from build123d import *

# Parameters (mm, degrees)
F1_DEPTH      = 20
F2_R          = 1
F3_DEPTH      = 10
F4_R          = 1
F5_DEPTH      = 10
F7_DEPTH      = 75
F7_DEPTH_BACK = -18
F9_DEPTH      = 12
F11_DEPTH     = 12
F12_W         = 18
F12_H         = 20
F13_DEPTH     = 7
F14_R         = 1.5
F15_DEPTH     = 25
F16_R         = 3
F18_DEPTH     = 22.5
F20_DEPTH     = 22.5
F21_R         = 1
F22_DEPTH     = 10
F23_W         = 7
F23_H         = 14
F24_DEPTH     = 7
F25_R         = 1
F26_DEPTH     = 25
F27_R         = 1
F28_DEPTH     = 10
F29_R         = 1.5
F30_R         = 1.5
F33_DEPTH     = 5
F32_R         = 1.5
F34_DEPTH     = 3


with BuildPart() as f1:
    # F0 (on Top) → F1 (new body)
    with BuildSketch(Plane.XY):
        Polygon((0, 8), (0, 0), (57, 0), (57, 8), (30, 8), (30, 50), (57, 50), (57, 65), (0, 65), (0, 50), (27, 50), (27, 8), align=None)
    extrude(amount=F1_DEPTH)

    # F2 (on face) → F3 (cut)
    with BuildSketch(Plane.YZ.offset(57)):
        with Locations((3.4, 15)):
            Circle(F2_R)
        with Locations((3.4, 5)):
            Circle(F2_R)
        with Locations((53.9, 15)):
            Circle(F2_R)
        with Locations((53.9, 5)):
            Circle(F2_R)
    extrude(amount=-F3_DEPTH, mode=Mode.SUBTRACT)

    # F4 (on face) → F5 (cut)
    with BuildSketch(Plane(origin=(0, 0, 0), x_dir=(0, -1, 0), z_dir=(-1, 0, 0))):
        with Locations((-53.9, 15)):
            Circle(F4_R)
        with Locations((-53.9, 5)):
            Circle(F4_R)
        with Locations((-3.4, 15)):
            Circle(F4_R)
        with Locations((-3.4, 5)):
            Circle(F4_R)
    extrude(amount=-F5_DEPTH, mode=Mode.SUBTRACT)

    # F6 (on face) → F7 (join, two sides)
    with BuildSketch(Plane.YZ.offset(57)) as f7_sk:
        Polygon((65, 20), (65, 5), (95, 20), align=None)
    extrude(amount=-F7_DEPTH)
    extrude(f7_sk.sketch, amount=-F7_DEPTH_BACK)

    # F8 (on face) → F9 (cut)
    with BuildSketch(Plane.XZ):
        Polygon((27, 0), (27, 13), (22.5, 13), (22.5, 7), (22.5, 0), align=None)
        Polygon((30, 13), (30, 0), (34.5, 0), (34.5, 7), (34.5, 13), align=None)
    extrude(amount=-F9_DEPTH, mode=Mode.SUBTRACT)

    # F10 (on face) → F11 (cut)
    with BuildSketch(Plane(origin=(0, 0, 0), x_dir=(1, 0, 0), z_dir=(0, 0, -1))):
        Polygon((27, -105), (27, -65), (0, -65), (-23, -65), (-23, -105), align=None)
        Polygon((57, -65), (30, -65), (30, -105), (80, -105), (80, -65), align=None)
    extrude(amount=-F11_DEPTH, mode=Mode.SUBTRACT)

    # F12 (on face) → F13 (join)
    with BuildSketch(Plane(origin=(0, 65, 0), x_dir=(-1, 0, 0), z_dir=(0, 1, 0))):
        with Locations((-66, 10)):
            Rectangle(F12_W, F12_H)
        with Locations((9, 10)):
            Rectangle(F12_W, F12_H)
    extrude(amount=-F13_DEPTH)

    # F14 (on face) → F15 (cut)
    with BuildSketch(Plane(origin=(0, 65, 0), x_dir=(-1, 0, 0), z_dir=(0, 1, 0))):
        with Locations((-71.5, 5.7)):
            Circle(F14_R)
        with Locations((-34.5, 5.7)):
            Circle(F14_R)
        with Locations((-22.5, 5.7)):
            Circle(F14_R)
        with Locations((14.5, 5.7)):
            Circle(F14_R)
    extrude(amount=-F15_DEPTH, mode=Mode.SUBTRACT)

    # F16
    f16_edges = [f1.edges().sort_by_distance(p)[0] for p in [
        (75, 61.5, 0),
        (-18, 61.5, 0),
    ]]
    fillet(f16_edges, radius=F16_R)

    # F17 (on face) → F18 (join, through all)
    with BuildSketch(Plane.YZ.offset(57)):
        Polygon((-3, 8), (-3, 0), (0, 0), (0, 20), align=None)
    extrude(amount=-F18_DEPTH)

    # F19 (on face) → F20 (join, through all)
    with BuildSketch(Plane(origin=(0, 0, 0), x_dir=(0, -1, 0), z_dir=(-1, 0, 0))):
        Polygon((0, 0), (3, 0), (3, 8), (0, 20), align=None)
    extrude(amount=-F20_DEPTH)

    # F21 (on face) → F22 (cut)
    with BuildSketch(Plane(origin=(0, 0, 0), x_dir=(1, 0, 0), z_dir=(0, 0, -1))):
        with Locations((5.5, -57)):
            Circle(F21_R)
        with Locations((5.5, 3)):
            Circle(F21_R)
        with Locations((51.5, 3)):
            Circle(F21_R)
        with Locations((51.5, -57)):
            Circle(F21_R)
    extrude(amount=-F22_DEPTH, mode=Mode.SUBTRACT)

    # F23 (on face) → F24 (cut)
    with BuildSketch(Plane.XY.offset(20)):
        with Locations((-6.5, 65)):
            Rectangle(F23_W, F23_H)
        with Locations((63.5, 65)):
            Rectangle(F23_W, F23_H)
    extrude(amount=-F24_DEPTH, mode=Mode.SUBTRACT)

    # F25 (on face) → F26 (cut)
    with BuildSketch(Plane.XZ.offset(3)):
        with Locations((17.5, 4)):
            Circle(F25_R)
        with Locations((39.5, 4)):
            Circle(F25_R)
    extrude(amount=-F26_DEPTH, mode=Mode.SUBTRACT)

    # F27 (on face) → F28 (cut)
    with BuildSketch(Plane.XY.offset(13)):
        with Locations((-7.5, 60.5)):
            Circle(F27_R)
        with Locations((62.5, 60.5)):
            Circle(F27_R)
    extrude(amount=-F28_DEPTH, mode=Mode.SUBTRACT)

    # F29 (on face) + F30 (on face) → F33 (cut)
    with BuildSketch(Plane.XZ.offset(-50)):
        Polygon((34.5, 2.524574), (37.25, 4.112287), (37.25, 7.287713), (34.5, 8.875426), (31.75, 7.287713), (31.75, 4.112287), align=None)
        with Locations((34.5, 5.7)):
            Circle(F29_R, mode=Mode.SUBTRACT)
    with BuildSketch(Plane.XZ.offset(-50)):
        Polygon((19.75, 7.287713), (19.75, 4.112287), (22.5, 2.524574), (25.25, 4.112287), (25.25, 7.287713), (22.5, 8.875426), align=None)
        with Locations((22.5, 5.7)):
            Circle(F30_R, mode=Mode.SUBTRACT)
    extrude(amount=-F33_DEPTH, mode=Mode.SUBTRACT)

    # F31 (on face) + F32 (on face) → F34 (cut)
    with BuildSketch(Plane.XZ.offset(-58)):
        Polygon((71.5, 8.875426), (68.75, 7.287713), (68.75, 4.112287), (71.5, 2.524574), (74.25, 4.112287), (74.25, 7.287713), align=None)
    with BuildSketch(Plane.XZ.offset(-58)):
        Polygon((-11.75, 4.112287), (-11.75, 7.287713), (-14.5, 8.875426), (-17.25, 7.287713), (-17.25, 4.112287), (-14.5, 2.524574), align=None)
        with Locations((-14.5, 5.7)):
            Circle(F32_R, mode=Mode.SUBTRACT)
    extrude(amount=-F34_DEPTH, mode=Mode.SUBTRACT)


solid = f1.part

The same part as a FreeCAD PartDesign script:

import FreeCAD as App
import Part
import Sketcher

V = App.Vector
Q = App.Units.Quantity


def edges_at(feature, points):
    """Names of the edges that pass closest to the given points."""
    edges = feature.Shape.Edges
    near = lambda p: min(range(len(edges)), key=lambda i: edges[i].distToShape(Part.Vertex(*p))[0])
    return sorted({f"Edge{near(p) + 1}" for p in points})

doc = App.newDocument("Part")
params = doc.addObject("Spreadsheet::Sheet", "Params")
for row, (alias, value) in enumerate([
    ("sketch1_width", "57 mm"),
    ("sketch1_width2", "27 mm"),
    ("sketch1_height", "8 mm"),
    ("sketch1_height2", "42 mm"),
    ("sketch1_height3", "15 mm"),
    ("pad1_length", "20 mm"),
    ("sketch2_diameter", "2 mm"),
    ("pocket1_length", "10 mm"),
    ("sketch3_diameter", "2 mm"),
    ("pocket2_length", "10 mm"),
    ("sketch4_width", "30 mm"),
    ("sketch4_height", "15 mm"),
    ("pad2_length", "75 mm"),
    ("pad2_length2", "18 mm"),
    ("sketch5_height", "13 mm"),
    ("sketch5_width", "4.5 mm"),
    ("pocket3_length", "12 mm"),
    ("sketch6_width", "50 mm"),
    ("sketch6_height", "40 mm"),
    ("pocket4_length", "12 mm"),
    ("sketch7_width", "18 mm"),
    ("sketch7_height", "20 mm"),
    ("pad3_length", "7 mm"),
    ("sketch8_diameter", "3 mm"),
    ("pocket5_length", "25 mm"),
    ("fillet_radius", "3 mm"),
    ("sketch9_width", "3 mm"),
    ("sketch9_height", "8 mm"),
    ("sketch9_height2", "20 mm"),
    ("pad4_length", "22.5 mm"),
    ("sketch10_width", "3 mm"),
    ("sketch10_height", "8 mm"),
    ("sketch10_height2", "20 mm"),
    ("pad5_length", "22.5 mm"),
    ("sketch11_diameter", "2 mm"),
    ("pocket6_length", "10 mm"),
    ("sketch12_width", "7 mm"),
    ("sketch12_height", "14 mm"),
    ("pocket7_length", "7 mm"),
    ("sketch13_diameter", "2 mm"),
    ("pocket8_length", "25 mm"),
    ("sketch14_diameter", "2 mm"),
    ("pocket9_length", "10 mm"),
    ("sketch15_diameter", "3 mm"),
    ("pocket10_length", "5 mm"),
    ("sketch16_diameter", "3 mm"),
    ("pocket11_length", "3 mm"),
], start=1):
    params.set(f"A{row}", alias)
    params.set(f"B{row}", "=" + value)
    params.setAlias(f"B{row}", alias)

body = doc.addObject("PartDesign::Body", "Body")

sketch1 = body.newObject("Sketcher::SketchObject", "Sketch")
sketch1.AttachmentSupport = (doc.getObject("XY_Plane"), [""])
sketch1.MapMode = "FlatFace"
sketch1.addGeometry([
    Part.LineSegment(V(0, 8, 0), V(0, 0, 0)),
    Part.LineSegment(V(0, 0, 0), V(57, 0, 0)),
    Part.LineSegment(V(57, 0, 0), V(57, 8, 0)),
    Part.LineSegment(V(57, 8, 0), V(30, 8, 0)),
    Part.LineSegment(V(30, 8, 0), V(30, 50, 0)),
    Part.LineSegment(V(30, 50, 0), V(57, 50, 0)),
    Part.LineSegment(V(57, 50, 0), V(57, 65, 0)),
    Part.LineSegment(V(57, 65, 0), V(0, 65, 0)),
    Part.LineSegment(V(0, 65, 0), V(0, 50, 0)),
    Part.LineSegment(V(0, 50, 0), V(27, 50, 0)),
    Part.LineSegment(V(27, 50, 0), V(27, 8, 0)),
    Part.LineSegment(V(27, 8, 0), V(0, 8, 0)),
], False)
sketch1.addConstraint([
    Sketcher.Constraint("Coincident", 0, 2, 1, 1),
    Sketcher.Constraint("Coincident", 1, 2, 2, 1),
    Sketcher.Constraint("Coincident", 2, 2, 3, 1),
    Sketcher.Constraint("Coincident", 3, 2, 4, 1),
    Sketcher.Constraint("Coincident", 4, 2, 5, 1),
    Sketcher.Constraint("Coincident", 5, 2, 6, 1),
    Sketcher.Constraint("Coincident", 6, 2, 7, 1),
    Sketcher.Constraint("Coincident", 7, 2, 8, 1),
    Sketcher.Constraint("Coincident", 8, 2, 9, 1),
    Sketcher.Constraint("Coincident", 9, 2, 10, 1),
    Sketcher.Constraint("Coincident", 10, 2, 11, 1),
    Sketcher.Constraint("Coincident", 11, 2, 0, 1),
    Sketcher.Constraint("Vertical", 0),
    Sketcher.Constraint("Horizontal", 1),
    Sketcher.Constraint("Vertical", 2),
    Sketcher.Constraint("Horizontal", 3),
    Sketcher.Constraint("Vertical", 4),
    Sketcher.Constraint("Horizontal", 5),
    Sketcher.Constraint("Vertical", 6),
    Sketcher.Constraint("Horizontal", 7),
    Sketcher.Constraint("Vertical", 8),
    Sketcher.Constraint("Horizontal", 9),
    Sketcher.Constraint("Vertical", 10),
    Sketcher.Constraint("Horizontal", 11),
    Sketcher.Constraint("Coincident", 0, 2, -1, 1),
    Sketcher.Constraint("PointOnObject", 7, 2, -2),
    Sketcher.Constraint("Horizontal", 5, 2, 8, 2),
    Sketcher.Constraint("Horizontal", 3, 2, 10, 2),
    Sketcher.Constraint("Vertical", 2, 2, 5, 2),
    Sketcher.Constraint("Equal", 5, 9),
    Sketcher.Constraint("DistanceX", 1, 1, 1, 2, 57.0),
    Sketcher.Constraint("DistanceX", 3, 2, 3, 1, 27.0),
    Sketcher.Constraint("DistanceY", 0, 2, 0, 1, 8.0),
    Sketcher.Constraint("DistanceY", 4, 1, 4, 2, 42.0),
    Sketcher.Constraint("DistanceY", 6, 1, 6, 2, 15.0),
])
sketch1.setExpression("Constraints[30]", "Params.sketch1_width")
sketch1.setExpression("Constraints[31]", "Params.sketch1_width2")
sketch1.setExpression("Constraints[32]", "Params.sketch1_height")
sketch1.setExpression("Constraints[33]", "Params.sketch1_height2")
sketch1.setExpression("Constraints[34]", "Params.sketch1_height3")
pad1 = body.newObject("PartDesign::Pad", "Pad")
pad1.Profile = sketch1
pad1.setExpression("Length", "Params.pad1_length")

sketch2 = body.newObject("Sketcher::SketchObject", "Sketch001")
sketch2.AttachmentSupport = (doc.getObject("YZ_Plane"), [""])
sketch2.MapMode = "FlatFace"
sketch2.AttachmentOffset = App.Placement(V(0, 0, 57), App.Rotation())
sketch2.addGeometry([
    Part.Circle(V(3.4, 15, 0), V(0, 0, 1), 1),
    Part.Circle(V(3.4, 5, 0), V(0, 0, 1), 1),
    Part.Circle(V(53.9, 15, 0), V(0, 0, 1), 1),
    Part.Circle(V(53.9, 5, 0), V(0, 0, 1), 1),
], False)
sketch2.addConstraint([
    Sketcher.Constraint("Equal", 0, 1),
    Sketcher.Constraint("Equal", 1, 2),
    Sketcher.Constraint("Equal", 2, 3),
    Sketcher.Constraint("Horizontal", 0, 3, 2, 3),
    Sketcher.Constraint("Horizontal", 1, 3, 3, 3),
    Sketcher.Constraint("Vertical", 0, 3, 1, 3),
    Sketcher.Constraint("Vertical", 2, 3, 3, 3),
    Sketcher.Constraint("Diameter", 0, 2.0),
    Sketcher.Constraint("DistanceY", -1, 1, 0, 3, 15.0),
    Sketcher.Constraint("DistanceY", -1, 1, 1, 3, 5.0),
    Sketcher.Constraint("DistanceX", -1, 1, 0, 3, 3.4),
    Sketcher.Constraint("DistanceX", -1, 1, 2, 3, 53.9),
])
sketch2.setExpression("Constraints[7]", "Params.sketch2_diameter")
pocket1 = body.newObject("PartDesign::Pocket", "Pocket")
pocket1.Profile = sketch2
pocket1.setExpression("Length", "Params.pocket1_length")

sketch3 = body.newObject("Sketcher::SketchObject", "Sketch002")
sketch3.AttachmentSupport = (doc.getObject("YZ_Plane"), [""])
sketch3.MapMode = "FlatFace"
sketch3.addGeometry([
    Part.Circle(V(53.9, 15, 0), V(0, 0, 1), 1),
    Part.Circle(V(53.9, 5, 0), V(0, 0, 1), 1),
    Part.Circle(V(3.4, 15, 0), V(0, 0, 1), 1),
    Part.Circle(V(3.4, 5, 0), V(0, 0, 1), 1),
], False)
sketch3.addConstraint([
    Sketcher.Constraint("Equal", 0, 1),
    Sketcher.Constraint("Equal", 1, 2),
    Sketcher.Constraint("Equal", 2, 3),
    Sketcher.Constraint("Horizontal", 0, 3, 2, 3),
    Sketcher.Constraint("Horizontal", 1, 3, 3, 3),
    Sketcher.Constraint("Vertical", 0, 3, 1, 3),
    Sketcher.Constraint("Vertical", 2, 3, 3, 3),
    Sketcher.Constraint("Diameter", 0, 2.0),
    Sketcher.Constraint("DistanceY", -1, 1, 0, 3, 15.0),
    Sketcher.Constraint("DistanceY", -1, 1, 1, 3, 5.0),
    Sketcher.Constraint("DistanceX", -1, 1, 0, 3, 53.9),
    Sketcher.Constraint("DistanceX", -1, 1, 2, 3, 3.4),
])
sketch3.setExpression("Constraints[7]", "Params.sketch3_diameter")
pocket2 = body.newObject("PartDesign::Pocket", "Pocket001")
pocket2.Profile = sketch3
pocket2.setExpression("Length", "Params.pocket2_length")
pocket2.Reversed = True

sketch4 = body.newObject("Sketcher::SketchObject", "Sketch003")
sketch4.AttachmentSupport = (doc.getObject("YZ_Plane"), [""])
sketch4.MapMode = "FlatFace"
sketch4.AttachmentOffset = App.Placement(V(0, 0, 57), App.Rotation())
sketch4.addGeometry([
    Part.LineSegment(V(65, 20, 0), V(65, 5, 0)),
    Part.LineSegment(V(65, 5, 0), V(95, 20, 0)),
    Part.LineSegment(V(95, 20, 0), V(65, 20, 0)),
], False)
sketch4.addConstraint([
    Sketcher.Constraint("Coincident", 0, 2, 1, 1),
    Sketcher.Constraint("Coincident", 1, 2, 2, 1),
    Sketcher.Constraint("Coincident", 2, 2, 0, 1),
    Sketcher.Constraint("Vertical", 0),
    Sketcher.Constraint("Horizontal", 2),
    Sketcher.Constraint("DistanceX", 2, 2, 2, 1, 30.0),
    Sketcher.Constraint("DistanceY", 0, 2, 0, 1, 15.0),
    Sketcher.Constraint("DistanceX", -1, 1, 0, 2, 65.0),
    Sketcher.Constraint("DistanceY", -1, 1, 0, 2, 5.0),
])
sketch4.setExpression("Constraints[5]", "Params.sketch4_width")
sketch4.setExpression("Constraints[6]", "Params.sketch4_height")
pad2 = body.newObject("PartDesign::Pad", "Pad001")
pad2.Profile = sketch4
pad2.Type = "TwoLengths"
pad2.setExpression("Length", "Params.pad2_length")
pad2.setExpression("Length2", "Params.pad2_length2")
pad2.Reversed = True

sketch5 = body.newObject("Sketcher::SketchObject", "Sketch004")
sketch5.AttachmentSupport = (doc.getObject("XZ_Plane"), [""])
sketch5.MapMode = "FlatFace"
sketch5.addGeometry([
    Part.LineSegment(V(27, 0, 0), V(27, 13, 0)),
    Part.LineSegment(V(27, 13, 0), V(22.5, 13, 0)),
    Part.LineSegment(V(22.5, 13, 0), V(22.5, 0, 0)),
    Part.LineSegment(V(22.5, 0, 0), V(27, 0, 0)),
    Part.LineSegment(V(30, 13, 0), V(30, 0, 0)),
    Part.LineSegment(V(30, 0, 0), V(34.5, 0, 0)),
    Part.LineSegment(V(34.5, 0, 0), V(34.5, 13, 0)),
    Part.LineSegment(V(34.5, 13, 0), V(30, 13, 0)),
], False)
sketch5.addConstraint([
    Sketcher.Constraint("Coincident", 0, 2, 1, 1),
    Sketcher.Constraint("Coincident", 1, 2, 2, 1),
    Sketcher.Constraint("Coincident", 2, 2, 3, 1),
    Sketcher.Constraint("Coincident", 3, 2, 0, 1),
    Sketcher.Constraint("Coincident", 4, 2, 5, 1),
    Sketcher.Constraint("Coincident", 5, 2, 6, 1),
    Sketcher.Constraint("Coincident", 6, 2, 7, 1),
    Sketcher.Constraint("Coincident", 7, 2, 4, 1),
    Sketcher.Constraint("Vertical", 0),
    Sketcher.Constraint("Horizontal", 1),
    Sketcher.Constraint("Vertical", 2),
    Sketcher.Constraint("Horizontal", 3),
    Sketcher.Constraint("Vertical", 4),
    Sketcher.Constraint("Horizontal", 5),
    Sketcher.Constraint("Vertical", 6),
    Sketcher.Constraint("Horizontal", 7),
    Sketcher.Constraint("PointOnObject", 2, 2, -1),
    Sketcher.Constraint("PointOnObject", 4, 2, -1),
    Sketcher.Constraint("Horizontal", 1, 2, 6, 2),
    Sketcher.Constraint("Equal", 3, 5),
    Sketcher.Constraint("DistanceY", 0, 1, 0, 2, 13.0),
    Sketcher.Constraint("DistanceX", 1, 2, 1, 1, 4.5),
    Sketcher.Constraint("DistanceX", -1, 1, 0, 2, 27.0),
    Sketcher.Constraint("DistanceX", -1, 1, 4, 2, 30.0),
])
sketch5.setExpression("Constraints[20]", "Params.sketch5_height")
sketch5.setExpression("Constraints[21]", "Params.sketch5_width")
pocket3 = body.newObject("PartDesign::Pocket", "Pocket002")
pocket3.Profile = sketch5
pocket3.setExpression("Length", "Params.pocket3_length")

sketch6 = body.newObject("Sketcher::SketchObject", "Sketch005")
sketch6.AttachmentSupport = (doc.getObject("XY_Plane"), [""])
sketch6.MapMode = "FlatFace"
sketch6.addGeometry([
    Part.LineSegment(V(27, 105, 0), V(27, 65, 0)),
    Part.LineSegment(V(27, 65, 0), V(-23, 65, 0)),
    Part.LineSegment(V(-23, 65, 0), V(-23, 105, 0)),
    Part.LineSegment(V(-23, 105, 0), V(27, 105, 0)),
    Part.LineSegment(V(30, 65, 0), V(30, 105, 0)),
    Part.LineSegment(V(30, 105, 0), V(80, 105, 0)),
    Part.LineSegment(V(80, 105, 0), V(80, 65, 0)),
    Part.LineSegment(V(80, 65, 0), V(30, 65, 0)),
], False)
sketch6.addConstraint([
    Sketcher.Constraint("Coincident", 0, 2, 1, 1),
    Sketcher.Constraint("Coincident", 1, 2, 2, 1),
    Sketcher.Constraint("Coincident", 2, 2, 3, 1),
    Sketcher.Constraint("Coincident", 3, 2, 0, 1),
    Sketcher.Constraint("Coincident", 4, 2, 5, 1),
    Sketcher.Constraint("Coincident", 5, 2, 6, 1),
    Sketcher.Constraint("Coincident", 6, 2, 7, 1),
    Sketcher.Constraint("Coincident", 7, 2, 4, 1),
    Sketcher.Constraint("Vertical", 0),
    Sketcher.Constraint("Horizontal", 1),
    Sketcher.Constraint("Vertical", 2),
    Sketcher.Constraint("Horizontal", 3),
    Sketcher.Constraint("Vertical", 4),
    Sketcher.Constraint("Horizontal", 5),
    Sketcher.Constraint("Vertical", 6),
    Sketcher.Constraint("Horizontal", 7),
    Sketcher.Constraint("Horizontal", 3, 2, 4, 2),
    Sketcher.Constraint("Horizontal", 1, 2, 6, 2),
    Sketcher.Constraint("Equal", 3, 5),
    Sketcher.Constraint("DistanceX", 1, 2, 1, 1, 50.0),
    Sketcher.Constraint("DistanceY", 0, 2, 0, 1, 40.0),
    Sketcher.Constraint("DistanceX", -1, 1, 0, 2, 27.0),
    Sketcher.Constraint("DistanceY", -1, 1, 0, 2, 65.0),
    Sketcher.Constraint("DistanceX", -1, 1, 4, 2, 30.0),
])
sketch6.setExpression("Constraints[19]", "Params.sketch6_width")
sketch6.setExpression("Constraints[20]", "Params.sketch6_height")
pocket4 = body.newObject("PartDesign::Pocket", "Pocket003")
pocket4.Profile = sketch6
pocket4.setExpression("Length", "Params.pocket4_length")
pocket4.Reversed = True

sketch7 = body.newObject("Sketcher::SketchObject", "Sketch006")
sketch7.AttachmentSupport = (doc.getObject("XZ_Plane"), [""])
sketch7.MapMode = "FlatFace"
sketch7.AttachmentOffset = App.Placement(V(0, 0, -65), App.Rotation())
sketch7.addGeometry([
    Part.LineSegment(V(75, 20, 0), V(75, 0, 0)),
    Part.LineSegment(V(75, 0, 0), V(57, 0, 0)),
    Part.LineSegment(V(57, 0, 0), V(57, 20, 0)),
    Part.LineSegment(V(57, 20, 0), V(75, 20, 0)),
    Part.LineSegment(V(0, 20, 0), V(0, 0, 0)),
    Part.LineSegment(V(0, 0, 0), V(-18, 0, 0)),
    Part.LineSegment(V(-18, 0, 0), V(-18, 20, 0)),
    Part.LineSegment(V(-18, 20, 0), V(0, 20, 0)),
], False)
sketch7.addConstraint([
    Sketcher.Constraint("Coincident", 0, 2, 1, 1),
    Sketcher.Constraint("Coincident", 1, 2, 2, 1),
    Sketcher.Constraint("Coincident", 2, 2, 3, 1),
    Sketcher.Constraint("Coincident", 3, 2, 0, 1),
    Sketcher.Constraint("Coincident", 4, 2, 5, 1),
    Sketcher.Constraint("Coincident", 5, 2, 6, 1),
    Sketcher.Constraint("Coincident", 6, 2, 7, 1),
    Sketcher.Constraint("Coincident", 7, 2, 4, 1),
    Sketcher.Constraint("Vertical", 0),
    Sketcher.Constraint("Horizontal", 1),
    Sketcher.Constraint("Vertical", 2),
    Sketcher.Constraint("Horizontal", 3),
    Sketcher.Constraint("Vertical", 4),
    Sketcher.Constraint("Horizontal", 5),
    Sketcher.Constraint("Vertical", 6),
    Sketcher.Constraint("Horizontal", 7),
    Sketcher.Constraint("Coincident", 4, 2, -1, 1),
    Sketcher.Constraint("PointOnObject", 0, 2, -1),
    Sketcher.Constraint("Horizontal", 3, 2, 6, 2),
    Sketcher.Constraint("Equal", 3, 5),
    Sketcher.Constraint("DistanceX", 1, 2, 1, 1, 18.0),
    Sketcher.Constraint("DistanceY", 0, 2, 0, 1, 20.0),
    Sketcher.Constraint("DistanceX", -1, 1, 0, 2, 75.0),
])
sketch7.setExpression("Constraints[20]", "Params.sketch7_width")
sketch7.setExpression("Constraints[21]", "Params.sketch7_height")
pad3 = body.newObject("PartDesign::Pad", "Pad002")
pad3.Profile = sketch7
pad3.setExpression("Length", "Params.pad3_length")

sketch8 = body.newObject("Sketcher::SketchObject", "Sketch007")
sketch8.AttachmentSupport = (doc.getObject("XZ_Plane"), [""])
sketch8.MapMode = "FlatFace"
sketch8.AttachmentOffset = App.Placement(V(0, 0, -65), App.Rotation())
sketch8.addGeometry([
    Part.Circle(V(71.5, 5.7, 0), V(0, 0, 1), 1.5),
    Part.Circle(V(34.5, 5.7, 0), V(0, 0, 1), 1.5),
    Part.Circle(V(22.5, 5.7, 0), V(0, 0, 1), 1.5),
    Part.Circle(V(-14.5, 5.7, 0), V(0, 0, 1), 1.5),
], False)
sketch8.addConstraint([
    Sketcher.Constraint("Equal", 0, 1),
    Sketcher.Constraint("Equal", 1, 2),
    Sketcher.Constraint("Equal", 2, 3),
    Sketcher.Constraint("Horizontal", 0, 3, 1, 3),
    Sketcher.Constraint("Horizontal", 1, 3, 2, 3),
    Sketcher.Constraint("Horizontal", 2, 3, 3, 3),
    Sketcher.Constraint("Diameter", 0, 3.0),
    Sketcher.Constraint("DistanceX", 1, 3, 0, 3, 37.0),
    Sketcher.Constraint("DistanceX", 2, 3, 1, 3, 12.0),
    Sketcher.Constraint("DistanceX", 3, 3, 2, 3, 37.0),
    Sketcher.Constraint("DistanceX", -1, 1, 0, 3, 71.5),
    Sketcher.Constraint("DistanceY", -1, 1, 0, 3, 5.7),
])
sketch8.setExpression("Constraints[6]", "Params.sketch8_diameter")
pocket5 = body.newObject("PartDesign::Pocket", "Pocket004")
pocket5.Profile = sketch8
pocket5.setExpression("Length", "Params.pocket5_length")
pocket5.Reversed = True
doc.recompute()

fillet = body.newObject("PartDesign::Fillet", "Fillet")
fillet.Base = (pocket5, edges_at(pocket5, [(75, 61.5, 0), (-18, 61.5, 0)]))
fillet.setExpression("Radius", "Params.fillet_radius")

sketch9 = body.newObject("Sketcher::SketchObject", "Sketch008")
sketch9.AttachmentSupport = (doc.getObject("YZ_Plane"), [""])
sketch9.MapMode = "FlatFace"
sketch9.AttachmentOffset = App.Placement(V(0, 0, 57), App.Rotation())
sketch9.addGeometry([
    Part.LineSegment(V(-3, 8, 0), V(-3, 0, 0)),
    Part.LineSegment(V(-3, 0, 0), V(0, 0, 0)),
    Part.LineSegment(V(0, 0, 0), V(0, 20, 0)),
    Part.LineSegment(V(0, 20, 0), V(-3, 8, 0)),
], False)
sketch9.addConstraint([
    Sketcher.Constraint("Coincident", 0, 2, 1, 1),
    Sketcher.Constraint("Coincident", 1, 2, 2, 1),
    Sketcher.Constraint("Coincident", 2, 2, 3, 1),
    Sketcher.Constraint("Coincident", 3, 2, 0, 1),
    Sketcher.Constraint("Vertical", 0),
    Sketcher.Constraint("Horizontal", 1),
    Sketcher.Constraint("Vertical", 2),
    Sketcher.Constraint("Coincident", 1, 2, -1, 1),
    Sketcher.Constraint("DistanceX", 1, 1, 1, 2, 3.0),
    Sketcher.Constraint("DistanceY", 0, 2, 0, 1, 8.0),
    Sketcher.Constraint("DistanceY", 2, 1, 2, 2, 20.0),
])
sketch9.setExpression("Constraints[8]", "Params.sketch9_width")
sketch9.setExpression("Constraints[9]", "Params.sketch9_height")
sketch9.setExpression("Constraints[10]", "Params.sketch9_height2")
pad4 = body.newObject("PartDesign::Pad", "Pad003")
pad4.Profile = sketch9
pad4.setExpression("Length", "Params.pad4_length")
pad4.Reversed = True

sketch10 = body.newObject("Sketcher::SketchObject", "Sketch009")
sketch10.AttachmentSupport = (doc.getObject("YZ_Plane"), [""])
sketch10.MapMode = "FlatFace"
sketch10.addGeometry([
    Part.LineSegment(V(0, 0, 0), V(-3, 0, 0)),
    Part.LineSegment(V(-3, 0, 0), V(-3, 8, 0)),
    Part.LineSegment(V(-3, 8, 0), V(0, 20, 0)),
    Part.LineSegment(V(0, 20, 0), V(0, 0, 0)),
], False)
sketch10.addConstraint([
    Sketcher.Constraint("Coincident", 0, 2, 1, 1),
    Sketcher.Constraint("Coincident", 1, 2, 2, 1),
    Sketcher.Constraint("Coincident", 2, 2, 3, 1),
    Sketcher.Constraint("Coincident", 3, 2, 0, 1),
    Sketcher.Constraint("Horizontal", 0),
    Sketcher.Constraint("Vertical", 1),
    Sketcher.Constraint("Vertical", 3),
    Sketcher.Constraint("Coincident", 3, 2, -1, 1),
    Sketcher.Constraint("DistanceX", 0, 2, 0, 1, 3.0),
    Sketcher.Constraint("DistanceY", 1, 1, 1, 2, 8.0),
    Sketcher.Constraint("DistanceY", 3, 2, 3, 1, 20.0),
])
sketch10.setExpression("Constraints[8]", "Params.sketch10_width")
sketch10.setExpression("Constraints[9]", "Params.sketch10_height")
sketch10.setExpression("Constraints[10]", "Params.sketch10_height2")
pad5 = body.newObject("PartDesign::Pad", "Pad004")
pad5.Profile = sketch10
pad5.setExpression("Length", "Params.pad5_length")

sketch11 = body.newObject("Sketcher::SketchObject", "Sketch010")
sketch11.AttachmentSupport = (doc.getObject("XY_Plane"), [""])
sketch11.MapMode = "FlatFace"
sketch11.addGeometry([
    Part.Circle(V(5.5, 57, 0), V(0, 0, 1), 1),
    Part.Circle(V(5.5, -3, 0), V(0, 0, 1), 1),
    Part.Circle(V(51.5, -3, 0), V(0, 0, 1), 1),
    Part.Circle(V(51.5, 57, 0), V(0, 0, 1), 1),
], False)
sketch11.addConstraint([
    Sketcher.Constraint("Equal", 0, 1),
    Sketcher.Constraint("Equal", 1, 2),
    Sketcher.Constraint("Equal", 2, 3),
    Sketcher.Constraint("Horizontal", 1, 3, 2, 3),
    Sketcher.Constraint("Horizontal", 0, 3, 3, 3),
    Sketcher.Constraint("Vertical", 0, 3, 1, 3),
    Sketcher.Constraint("Vertical", 2, 3, 3, 3),
    Sketcher.Constraint("Diameter", 0, 2.0),
    Sketcher.Constraint("DistanceY", -1, 1, 0, 3, 57.0),
    Sketcher.Constraint("DistanceY", 1, 3, -1, 1, 3.0),
    Sketcher.Constraint("DistanceX", 1, 3, 2, 3, 46.0),
    Sketcher.Constraint("DistanceX", -1, 1, 0, 3, 5.5),
])
sketch11.setExpression("Constraints[7]", "Params.sketch11_diameter")
pocket6 = body.newObject("PartDesign::Pocket", "Pocket005")
pocket6.Profile = sketch11
pocket6.setExpression("Length", "Params.pocket6_length")
pocket6.Reversed = True

sketch12 = body.newObject("Sketcher::SketchObject", "Sketch011")
sketch12.AttachmentSupport = (doc.getObject("XY_Plane"), [""])
sketch12.MapMode = "FlatFace"
sketch12.AttachmentOffset = App.Placement(V(0, 0, 20), App.Rotation())
sketch12.addGeometry([
    Part.LineSegment(V(-10, 72, 0), V(-10, 58, 0)),
    Part.LineSegment(V(-10, 58, 0), V(-3, 58, 0)),
    Part.LineSegment(V(-3, 58, 0), V(-3, 72, 0)),
    Part.LineSegment(V(-3, 72, 0), V(-10, 72, 0)),
    Part.LineSegment(V(60, 72, 0), V(60, 58, 0)),
    Part.LineSegment(V(60, 58, 0), V(67, 58, 0)),
    Part.LineSegment(V(67, 58, 0), V(67, 72, 0)),
    Part.LineSegment(V(67, 72, 0), V(60, 72, 0)),
], False)
sketch12.addConstraint([
    Sketcher.Constraint("Coincident", 0, 2, 1, 1),
    Sketcher.Constraint("Coincident", 1, 2, 2, 1),
    Sketcher.Constraint("Coincident", 2, 2, 3, 1),
    Sketcher.Constraint("Coincident", 3, 2, 0, 1),
    Sketcher.Constraint("Coincident", 4, 2, 5, 1),
    Sketcher.Constraint("Coincident", 5, 2, 6, 1),
    Sketcher.Constraint("Coincident", 6, 2, 7, 1),
    Sketcher.Constraint("Coincident", 7, 2, 4, 1),
    Sketcher.Constraint("Vertical", 0),
    Sketcher.Constraint("Horizontal", 1),
    Sketcher.Constraint("Vertical", 2),
    Sketcher.Constraint("Horizontal", 3),
    Sketcher.Constraint("Vertical", 4),
    Sketcher.Constraint("Horizontal", 5),
    Sketcher.Constraint("Vertical", 6),
    Sketcher.Constraint("Horizontal", 7),
    Sketcher.Constraint("Horizontal", 1, 2, 4, 2),
    Sketcher.Constraint("Horizontal", 3, 2, 6, 2),
    Sketcher.Constraint("Equal", 3, 5),
    Sketcher.Constraint("DistanceX", 1, 1, 1, 2, 7.0),
    Sketcher.Constraint("DistanceY", 0, 2, 0, 1, 14.0),
    Sketcher.Constraint("DistanceX", 0, 2, -1, 1, 10.0),
    Sketcher.Constraint("DistanceY", -1, 1, 0, 2, 58.0),
    Sketcher.Constraint("DistanceX", -1, 1, 4, 2, 60.0),
])
sketch12.setExpression("Constraints[19]", "Params.sketch12_width")
sketch12.setExpression("Constraints[20]", "Params.sketch12_height")
pocket7 = body.newObject("PartDesign::Pocket", "Pocket006")
pocket7.Profile = sketch12
pocket7.setExpression("Length", "Params.pocket7_length")

sketch13 = body.newObject("Sketcher::SketchObject", "Sketch012")
sketch13.AttachmentSupport = (doc.getObject("XZ_Plane"), [""])
sketch13.MapMode = "FlatFace"
sketch13.AttachmentOffset = App.Placement(V(0, 0, 3), App.Rotation())
sketch13.addGeometry([
    Part.Circle(V(17.5, 4, 0), V(0, 0, 1), 1),
    Part.Circle(V(39.5, 4, 0), V(0, 0, 1), 1),
], False)
sketch13.addConstraint([
    Sketcher.Constraint("Equal", 0, 1),
    Sketcher.Constraint("Horizontal", 0, 3, 1, 3),
    Sketcher.Constraint("Diameter", 0, 2.0),
    Sketcher.Constraint("DistanceY", -1, 1, 0, 3, 4.0),
    Sketcher.Constraint("DistanceX", 0, 3, 1, 3, 22.0),
    Sketcher.Constraint("DistanceX", -1, 1, 0, 3, 17.5),
])
sketch13.setExpression("Constraints[2]", "Params.sketch13_diameter")
pocket8 = body.newObject("PartDesign::Pocket", "Pocket007")
pocket8.Profile = sketch13
pocket8.setExpression("Length", "Params.pocket8_length")

sketch14 = body.newObject("Sketcher::SketchObject", "Sketch013")
sketch14.AttachmentSupport = (doc.getObject("XY_Plane"), [""])
sketch14.MapMode = "FlatFace"
sketch14.AttachmentOffset = App.Placement(V(0, 0, 13), App.Rotation())
sketch14.addGeometry([
    Part.Circle(V(-7.5, 60.5, 0), V(0, 0, 1), 1),
    Part.Circle(V(62.5, 60.5, 0), V(0, 0, 1), 1),
], False)
sketch14.addConstraint([
    Sketcher.Constraint("Equal", 0, 1),
    Sketcher.Constraint("Horizontal", 0, 3, 1, 3),
    Sketcher.Constraint("Diameter", 0, 2.0),
    Sketcher.Constraint("DistanceX", 0, 3, 1, 3, 70.0),
    Sketcher.Constraint("DistanceX", 0, 3, -1, 1, 7.5),
    Sketcher.Constraint("DistanceY", -1, 1, 0, 3, 60.5),
])
sketch14.setExpression("Constraints[2]", "Params.sketch14_diameter")
pocket9 = body.newObject("PartDesign::Pocket", "Pocket008")
pocket9.Profile = sketch14
pocket9.setExpression("Length", "Params.pocket9_length")

sketch15 = body.newObject("Sketcher::SketchObject", "Sketch014")
sketch15.AttachmentSupport = (doc.getObject("XZ_Plane"), [""])
sketch15.MapMode = "FlatFace"
sketch15.AttachmentOffset = App.Placement(V(0, 0, -50), App.Rotation())
sketch15.addGeometry([
    Part.LineSegment(V(34.5, 2.524574, 0), V(37.25, 4.112287, 0)),
    Part.LineSegment(V(37.25, 4.112287, 0), V(37.25, 7.287713, 0)),
    Part.LineSegment(V(37.25, 7.287713, 0), V(34.5, 8.875426, 0)),
    Part.LineSegment(V(34.5, 8.875426, 0), V(31.75, 7.287713, 0)),
    Part.LineSegment(V(31.75, 7.287713, 0), V(31.75, 4.112287, 0)),
    Part.LineSegment(V(31.75, 4.112287, 0), V(34.5, 2.524574, 0)),
    Part.Circle(V(34.5, 5.7, 0), V(0, 0, 1), 1.5),
    Part.LineSegment(V(19.75, 7.287713, 0), V(19.75, 4.112287, 0)),
    Part.LineSegment(V(19.75, 4.112287, 0), V(22.5, 2.524574, 0)),
    Part.LineSegment(V(22.5, 2.524574, 0), V(25.25, 4.112287, 0)),
    Part.LineSegment(V(25.25, 4.112287, 0), V(25.25, 7.287713, 0)),
    Part.LineSegment(V(25.25, 7.287713, 0), V(22.5, 8.875426, 0)),
    Part.LineSegment(V(22.5, 8.875426, 0), V(19.75, 7.287713, 0)),
    Part.Circle(V(22.5, 5.7, 0), V(0, 0, 1), 1.5),
], False)
sketch15.addConstraint([
    Sketcher.Constraint("Coincident", 0, 2, 1, 1),
    Sketcher.Constraint("Coincident", 1, 2, 2, 1),
    Sketcher.Constraint("Coincident", 2, 2, 3, 1),
    Sketcher.Constraint("Coincident", 3, 2, 4, 1),
    Sketcher.Constraint("Coincident", 4, 2, 5, 1),
    Sketcher.Constraint("Coincident", 5, 2, 0, 1),
    Sketcher.Constraint("Coincident", 7, 2, 8, 1),
    Sketcher.Constraint("Coincident", 8, 2, 9, 1),
    Sketcher.Constraint("Coincident", 9, 2, 10, 1),
    Sketcher.Constraint("Coincident", 10, 2, 11, 1),
    Sketcher.Constraint("Coincident", 11, 2, 12, 1),
    Sketcher.Constraint("Coincident", 12, 2, 7, 1),
    Sketcher.Constraint("Vertical", 1),
    Sketcher.Constraint("Vertical", 4),
    Sketcher.Constraint("Vertical", 7),
    Sketcher.Constraint("Vertical", 10),
    Sketcher.Constraint("Equal", 6, 13),
    Sketcher.Constraint("Parallel", 0, 3),
    Sketcher.Constraint("Parallel", 2, 5),
    Sketcher.Constraint("Parallel", 5, 8),
    Sketcher.Constraint("Parallel", 3, 9),
    Sketcher.Constraint("Parallel", 8, 11),
    Sketcher.Constraint("Parallel", 9, 12),
    Sketcher.Constraint("Horizontal", 6, 3, 13, 3),
    Sketcher.Constraint("Horizontal", 1, 2, 3, 2),
    Sketcher.Constraint("Horizontal", 0, 2, 4, 2),
    Sketcher.Constraint("Horizontal", 4, 2, 7, 2),
    Sketcher.Constraint("Horizontal", 5, 2, 8, 2),
    Sketcher.Constraint("Horizontal", 7, 2, 9, 2),
    Sketcher.Constraint("Horizontal", 3, 2, 10, 2),
    Sketcher.Constraint("Horizontal", 2, 2, 11, 2),
    Sketcher.Constraint("Vertical", 6, 3, 2, 2),
    Sketcher.Constraint("Vertical", 2, 2, 5, 2),
    Sketcher.Constraint("Vertical", 13, 3, 8, 2),
    Sketcher.Constraint("Diameter", 6, 3.0),
    Sketcher.Constraint("Angle", 0, Q("29.999996 deg")),
    Sketcher.Constraint("DistanceX", 13, 3, 6, 3, 12.0),
    Sketcher.Constraint("DistanceX", -1, 1, 6, 3, 34.5),
    Sketcher.Constraint("DistanceY", -1, 1, 6, 3, 5.7),
    Sketcher.Constraint("DistanceX", 3, 2, 1, 2, 5.5),
    Sketcher.Constraint("DistanceY", 1, 1, 1, 2, 3.175426),
    Sketcher.Constraint("DistanceY", -1, 1, 0, 2, 4.112287),
])
sketch15.setExpression("Constraints[34]", "Params.sketch15_diameter")
pocket10 = body.newObject("PartDesign::Pocket", "Pocket009")
pocket10.Profile = sketch15
pocket10.setExpression("Length", "Params.pocket10_length")

sketch16 = body.newObject("Sketcher::SketchObject", "Sketch015")
sketch16.AttachmentSupport = (doc.getObject("XZ_Plane"), [""])
sketch16.MapMode = "FlatFace"
sketch16.AttachmentOffset = App.Placement(V(0, 0, -58), App.Rotation())
sketch16.addGeometry([
    Part.LineSegment(V(71.5, 8.875426, 0), V(68.75, 7.287713, 0)),
    Part.LineSegment(V(68.75, 7.287713, 0), V(68.75, 4.112287, 0)),
    Part.LineSegment(V(68.75, 4.112287, 0), V(71.5, 2.524574, 0)),
    Part.LineSegment(V(71.5, 2.524574, 0), V(74.25, 4.112287, 0)),
    Part.LineSegment(V(74.25, 4.112287, 0), V(74.25, 7.287713, 0)),
    Part.LineSegment(V(74.25, 7.287713, 0), V(71.5, 8.875426, 0)),
    Part.LineSegment(V(-11.75, 4.112287, 0), V(-11.75, 7.287713, 0)),
    Part.LineSegment(V(-11.75, 7.287713, 0), V(-14.5, 8.875426, 0)),
    Part.LineSegment(V(-14.5, 8.875426, 0), V(-17.25, 7.287713, 0)),
    Part.LineSegment(V(-17.25, 7.287713, 0), V(-17.25, 4.112287, 0)),
    Part.LineSegment(V(-17.25, 4.112287, 0), V(-14.5, 2.524574, 0)),
    Part.LineSegment(V(-14.5, 2.524574, 0), V(-11.75, 4.112287, 0)),
    Part.Circle(V(-14.5, 5.7, 0), V(0, 0, 1), 1.5),
], False)
sketch16.addConstraint([
    Sketcher.Constraint("Coincident", 0, 2, 1, 1),
    Sketcher.Constraint("Coincident", 1, 2, 2, 1),
    Sketcher.Constraint("Coincident", 2, 2, 3, 1),
    Sketcher.Constraint("Coincident", 3, 2, 4, 1),
    Sketcher.Constraint("Coincident", 4, 2, 5, 1),
    Sketcher.Constraint("Coincident", 5, 2, 0, 1),
    Sketcher.Constraint("Coincident", 6, 2, 7, 1),
    Sketcher.Constraint("Coincident", 7, 2, 8, 1),
    Sketcher.Constraint("Coincident", 8, 2, 9, 1),
    Sketcher.Constraint("Coincident", 9, 2, 10, 1),
    Sketcher.Constraint("Coincident", 10, 2, 11, 1),
    Sketcher.Constraint("Coincident", 11, 2, 6, 1),
    Sketcher.Constraint("Vertical", 1),
    Sketcher.Constraint("Vertical", 4),
    Sketcher.Constraint("Vertical", 6),
    Sketcher.Constraint("Vertical", 9),
    Sketcher.Constraint("Parallel", 0, 3),
    Sketcher.Constraint("Parallel", 2, 5),
    Sketcher.Constraint("Parallel", 5, 7),
    Sketcher.Constraint("Parallel", 3, 8),
    Sketcher.Constraint("Parallel", 7, 10),
    Sketcher.Constraint("Parallel", 8, 11),
    Sketcher.Constraint("Horizontal", 1, 2, 3, 2),
    Sketcher.Constraint("Horizontal", 0, 2, 4, 2),
    Sketcher.Constraint("Horizontal", 4, 2, 6, 2),
    Sketcher.Constraint("Horizontal", 5, 2, 7, 2),
    Sketcher.Constraint("Horizontal", 6, 2, 8, 2),
    Sketcher.Constraint("Horizontal", 3, 2, 9, 2),
    Sketcher.Constraint("Horizontal", 2, 2, 10, 2),
    Sketcher.Constraint("Vertical", 2, 2, 5, 2),
    Sketcher.Constraint("Vertical", 12, 3, 7, 2),
    Sketcher.Constraint("Diameter", 12, 3.0),
    Sketcher.Constraint("Angle", 0, Q("-150.000004 deg")),
    Sketcher.Constraint("DistanceX", 12, 3, 2, 2, 86.0),
    Sketcher.Constraint("DistanceX", 12, 3, -1, 1, 14.5),
    Sketcher.Constraint("DistanceY", -1, 1, 12, 3, 5.7),
    Sketcher.Constraint("DistanceX", 1, 2, 3, 2, 5.5),
    Sketcher.Constraint("DistanceY", 1, 2, 1, 1, 3.175426),
    Sketcher.Constraint("DistanceY", -1, 1, 0, 2, 7.287713),
])
sketch16.setExpression("Constraints[31]", "Params.sketch16_diameter")
pocket11 = body.newObject("PartDesign::Pocket", "Pocket010")
pocket11.Profile = sketch16
pocket11.setExpression("Length", "Params.pocket11_length")

doc.recompute()
